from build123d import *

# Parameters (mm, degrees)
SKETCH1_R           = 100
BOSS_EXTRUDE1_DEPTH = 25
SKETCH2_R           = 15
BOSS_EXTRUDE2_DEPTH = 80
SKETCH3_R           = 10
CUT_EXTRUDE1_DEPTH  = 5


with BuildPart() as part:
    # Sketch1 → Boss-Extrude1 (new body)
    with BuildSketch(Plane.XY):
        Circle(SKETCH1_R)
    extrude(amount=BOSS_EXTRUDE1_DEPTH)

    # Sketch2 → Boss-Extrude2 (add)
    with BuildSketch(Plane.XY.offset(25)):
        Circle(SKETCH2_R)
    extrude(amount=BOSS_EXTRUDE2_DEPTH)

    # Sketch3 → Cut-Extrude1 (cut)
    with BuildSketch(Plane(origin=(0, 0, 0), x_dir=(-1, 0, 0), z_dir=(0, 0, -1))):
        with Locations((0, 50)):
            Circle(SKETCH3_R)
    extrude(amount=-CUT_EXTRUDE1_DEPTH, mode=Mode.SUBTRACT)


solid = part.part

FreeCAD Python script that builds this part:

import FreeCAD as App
import Part
import Sketcher
from FreeCAD import Vector
Q = App.Units.Quantity

doc = App.newDocument("Part")
body = doc.addObject("PartDesign::Body", "Body")

# Sketch on XY plane
sketch1 = body.newObject("Sketcher::SketchObject", "Sketch")
sketch1.AttachmentSupport = (doc.getObject("XY_Plane"), [""])
sketch1.MapMode = "FlatFace"
sketch1.addGeometry(Part.Circle(Vector(0, 0, 0), Vector(0, 0, 1), 100), False)
sketch1.addConstraint([
    Sketcher.Constraint("Coincident", 0, 3, -1, 1),
    Sketcher.Constraint("Diameter", 0, Q("200 mm")),
])
pad1 = body.newObject("PartDesign::Pad", "Pad")
pad1.Profile = sketch1
pad1.Length = 25

# Sketch on XY plane
sketch2 = body.newObject("Sketcher::SketchObject", "Sketch001")
sketch2.AttachmentSupport = (doc.getObject("XY_Plane"), [""])
sketch2.MapMode = "FlatFace"
sketch2.AttachmentOffset = App.Placement(Vector(0, 0, 25), App.Rotation())
sketch2.addGeometry(Part.Circle(Vector(0, 0, 0), Vector(0, 0, 1), 15), False)
sketch2.addConstraint([
    Sketcher.Constraint("Coincident", 0, 3, -1, 1),
    Sketcher.Constraint("Diameter", 0, Q("30 mm")),
])
pad2 = body.newObject("PartDesign::Pad", "Pad001")
pad2.Profile = sketch2
pad2.Length = 80

# Sketch on XY plane
sketch3 = body.newObject("Sketcher::SketchObject", "Sketch002")
sketch3.AttachmentSupport = (doc.getObject("XY_Plane"), [""])
sketch3.MapMode = "FlatFace"
sketch3.addGeometry(Part.Circle(Vector(0, 50, 0), Vector(0, 0, 1), 10), False)
sketch3.addConstraint([
    Sketcher.Constraint("PointOnObject", 0, 3, -2),
    Sketcher.Constraint("Diameter", 0, Q("20 mm")),
    Sketcher.Constraint("DistanceY", -1, 1, 0, 3, Q("50 mm")),
])
pocket1 = body.newObject("PartDesign::Pocket", "Pocket")
pocket1.Profile = sketch3
pocket1.Length = 5
pocket1.Reversed = True

doc.recompute()
